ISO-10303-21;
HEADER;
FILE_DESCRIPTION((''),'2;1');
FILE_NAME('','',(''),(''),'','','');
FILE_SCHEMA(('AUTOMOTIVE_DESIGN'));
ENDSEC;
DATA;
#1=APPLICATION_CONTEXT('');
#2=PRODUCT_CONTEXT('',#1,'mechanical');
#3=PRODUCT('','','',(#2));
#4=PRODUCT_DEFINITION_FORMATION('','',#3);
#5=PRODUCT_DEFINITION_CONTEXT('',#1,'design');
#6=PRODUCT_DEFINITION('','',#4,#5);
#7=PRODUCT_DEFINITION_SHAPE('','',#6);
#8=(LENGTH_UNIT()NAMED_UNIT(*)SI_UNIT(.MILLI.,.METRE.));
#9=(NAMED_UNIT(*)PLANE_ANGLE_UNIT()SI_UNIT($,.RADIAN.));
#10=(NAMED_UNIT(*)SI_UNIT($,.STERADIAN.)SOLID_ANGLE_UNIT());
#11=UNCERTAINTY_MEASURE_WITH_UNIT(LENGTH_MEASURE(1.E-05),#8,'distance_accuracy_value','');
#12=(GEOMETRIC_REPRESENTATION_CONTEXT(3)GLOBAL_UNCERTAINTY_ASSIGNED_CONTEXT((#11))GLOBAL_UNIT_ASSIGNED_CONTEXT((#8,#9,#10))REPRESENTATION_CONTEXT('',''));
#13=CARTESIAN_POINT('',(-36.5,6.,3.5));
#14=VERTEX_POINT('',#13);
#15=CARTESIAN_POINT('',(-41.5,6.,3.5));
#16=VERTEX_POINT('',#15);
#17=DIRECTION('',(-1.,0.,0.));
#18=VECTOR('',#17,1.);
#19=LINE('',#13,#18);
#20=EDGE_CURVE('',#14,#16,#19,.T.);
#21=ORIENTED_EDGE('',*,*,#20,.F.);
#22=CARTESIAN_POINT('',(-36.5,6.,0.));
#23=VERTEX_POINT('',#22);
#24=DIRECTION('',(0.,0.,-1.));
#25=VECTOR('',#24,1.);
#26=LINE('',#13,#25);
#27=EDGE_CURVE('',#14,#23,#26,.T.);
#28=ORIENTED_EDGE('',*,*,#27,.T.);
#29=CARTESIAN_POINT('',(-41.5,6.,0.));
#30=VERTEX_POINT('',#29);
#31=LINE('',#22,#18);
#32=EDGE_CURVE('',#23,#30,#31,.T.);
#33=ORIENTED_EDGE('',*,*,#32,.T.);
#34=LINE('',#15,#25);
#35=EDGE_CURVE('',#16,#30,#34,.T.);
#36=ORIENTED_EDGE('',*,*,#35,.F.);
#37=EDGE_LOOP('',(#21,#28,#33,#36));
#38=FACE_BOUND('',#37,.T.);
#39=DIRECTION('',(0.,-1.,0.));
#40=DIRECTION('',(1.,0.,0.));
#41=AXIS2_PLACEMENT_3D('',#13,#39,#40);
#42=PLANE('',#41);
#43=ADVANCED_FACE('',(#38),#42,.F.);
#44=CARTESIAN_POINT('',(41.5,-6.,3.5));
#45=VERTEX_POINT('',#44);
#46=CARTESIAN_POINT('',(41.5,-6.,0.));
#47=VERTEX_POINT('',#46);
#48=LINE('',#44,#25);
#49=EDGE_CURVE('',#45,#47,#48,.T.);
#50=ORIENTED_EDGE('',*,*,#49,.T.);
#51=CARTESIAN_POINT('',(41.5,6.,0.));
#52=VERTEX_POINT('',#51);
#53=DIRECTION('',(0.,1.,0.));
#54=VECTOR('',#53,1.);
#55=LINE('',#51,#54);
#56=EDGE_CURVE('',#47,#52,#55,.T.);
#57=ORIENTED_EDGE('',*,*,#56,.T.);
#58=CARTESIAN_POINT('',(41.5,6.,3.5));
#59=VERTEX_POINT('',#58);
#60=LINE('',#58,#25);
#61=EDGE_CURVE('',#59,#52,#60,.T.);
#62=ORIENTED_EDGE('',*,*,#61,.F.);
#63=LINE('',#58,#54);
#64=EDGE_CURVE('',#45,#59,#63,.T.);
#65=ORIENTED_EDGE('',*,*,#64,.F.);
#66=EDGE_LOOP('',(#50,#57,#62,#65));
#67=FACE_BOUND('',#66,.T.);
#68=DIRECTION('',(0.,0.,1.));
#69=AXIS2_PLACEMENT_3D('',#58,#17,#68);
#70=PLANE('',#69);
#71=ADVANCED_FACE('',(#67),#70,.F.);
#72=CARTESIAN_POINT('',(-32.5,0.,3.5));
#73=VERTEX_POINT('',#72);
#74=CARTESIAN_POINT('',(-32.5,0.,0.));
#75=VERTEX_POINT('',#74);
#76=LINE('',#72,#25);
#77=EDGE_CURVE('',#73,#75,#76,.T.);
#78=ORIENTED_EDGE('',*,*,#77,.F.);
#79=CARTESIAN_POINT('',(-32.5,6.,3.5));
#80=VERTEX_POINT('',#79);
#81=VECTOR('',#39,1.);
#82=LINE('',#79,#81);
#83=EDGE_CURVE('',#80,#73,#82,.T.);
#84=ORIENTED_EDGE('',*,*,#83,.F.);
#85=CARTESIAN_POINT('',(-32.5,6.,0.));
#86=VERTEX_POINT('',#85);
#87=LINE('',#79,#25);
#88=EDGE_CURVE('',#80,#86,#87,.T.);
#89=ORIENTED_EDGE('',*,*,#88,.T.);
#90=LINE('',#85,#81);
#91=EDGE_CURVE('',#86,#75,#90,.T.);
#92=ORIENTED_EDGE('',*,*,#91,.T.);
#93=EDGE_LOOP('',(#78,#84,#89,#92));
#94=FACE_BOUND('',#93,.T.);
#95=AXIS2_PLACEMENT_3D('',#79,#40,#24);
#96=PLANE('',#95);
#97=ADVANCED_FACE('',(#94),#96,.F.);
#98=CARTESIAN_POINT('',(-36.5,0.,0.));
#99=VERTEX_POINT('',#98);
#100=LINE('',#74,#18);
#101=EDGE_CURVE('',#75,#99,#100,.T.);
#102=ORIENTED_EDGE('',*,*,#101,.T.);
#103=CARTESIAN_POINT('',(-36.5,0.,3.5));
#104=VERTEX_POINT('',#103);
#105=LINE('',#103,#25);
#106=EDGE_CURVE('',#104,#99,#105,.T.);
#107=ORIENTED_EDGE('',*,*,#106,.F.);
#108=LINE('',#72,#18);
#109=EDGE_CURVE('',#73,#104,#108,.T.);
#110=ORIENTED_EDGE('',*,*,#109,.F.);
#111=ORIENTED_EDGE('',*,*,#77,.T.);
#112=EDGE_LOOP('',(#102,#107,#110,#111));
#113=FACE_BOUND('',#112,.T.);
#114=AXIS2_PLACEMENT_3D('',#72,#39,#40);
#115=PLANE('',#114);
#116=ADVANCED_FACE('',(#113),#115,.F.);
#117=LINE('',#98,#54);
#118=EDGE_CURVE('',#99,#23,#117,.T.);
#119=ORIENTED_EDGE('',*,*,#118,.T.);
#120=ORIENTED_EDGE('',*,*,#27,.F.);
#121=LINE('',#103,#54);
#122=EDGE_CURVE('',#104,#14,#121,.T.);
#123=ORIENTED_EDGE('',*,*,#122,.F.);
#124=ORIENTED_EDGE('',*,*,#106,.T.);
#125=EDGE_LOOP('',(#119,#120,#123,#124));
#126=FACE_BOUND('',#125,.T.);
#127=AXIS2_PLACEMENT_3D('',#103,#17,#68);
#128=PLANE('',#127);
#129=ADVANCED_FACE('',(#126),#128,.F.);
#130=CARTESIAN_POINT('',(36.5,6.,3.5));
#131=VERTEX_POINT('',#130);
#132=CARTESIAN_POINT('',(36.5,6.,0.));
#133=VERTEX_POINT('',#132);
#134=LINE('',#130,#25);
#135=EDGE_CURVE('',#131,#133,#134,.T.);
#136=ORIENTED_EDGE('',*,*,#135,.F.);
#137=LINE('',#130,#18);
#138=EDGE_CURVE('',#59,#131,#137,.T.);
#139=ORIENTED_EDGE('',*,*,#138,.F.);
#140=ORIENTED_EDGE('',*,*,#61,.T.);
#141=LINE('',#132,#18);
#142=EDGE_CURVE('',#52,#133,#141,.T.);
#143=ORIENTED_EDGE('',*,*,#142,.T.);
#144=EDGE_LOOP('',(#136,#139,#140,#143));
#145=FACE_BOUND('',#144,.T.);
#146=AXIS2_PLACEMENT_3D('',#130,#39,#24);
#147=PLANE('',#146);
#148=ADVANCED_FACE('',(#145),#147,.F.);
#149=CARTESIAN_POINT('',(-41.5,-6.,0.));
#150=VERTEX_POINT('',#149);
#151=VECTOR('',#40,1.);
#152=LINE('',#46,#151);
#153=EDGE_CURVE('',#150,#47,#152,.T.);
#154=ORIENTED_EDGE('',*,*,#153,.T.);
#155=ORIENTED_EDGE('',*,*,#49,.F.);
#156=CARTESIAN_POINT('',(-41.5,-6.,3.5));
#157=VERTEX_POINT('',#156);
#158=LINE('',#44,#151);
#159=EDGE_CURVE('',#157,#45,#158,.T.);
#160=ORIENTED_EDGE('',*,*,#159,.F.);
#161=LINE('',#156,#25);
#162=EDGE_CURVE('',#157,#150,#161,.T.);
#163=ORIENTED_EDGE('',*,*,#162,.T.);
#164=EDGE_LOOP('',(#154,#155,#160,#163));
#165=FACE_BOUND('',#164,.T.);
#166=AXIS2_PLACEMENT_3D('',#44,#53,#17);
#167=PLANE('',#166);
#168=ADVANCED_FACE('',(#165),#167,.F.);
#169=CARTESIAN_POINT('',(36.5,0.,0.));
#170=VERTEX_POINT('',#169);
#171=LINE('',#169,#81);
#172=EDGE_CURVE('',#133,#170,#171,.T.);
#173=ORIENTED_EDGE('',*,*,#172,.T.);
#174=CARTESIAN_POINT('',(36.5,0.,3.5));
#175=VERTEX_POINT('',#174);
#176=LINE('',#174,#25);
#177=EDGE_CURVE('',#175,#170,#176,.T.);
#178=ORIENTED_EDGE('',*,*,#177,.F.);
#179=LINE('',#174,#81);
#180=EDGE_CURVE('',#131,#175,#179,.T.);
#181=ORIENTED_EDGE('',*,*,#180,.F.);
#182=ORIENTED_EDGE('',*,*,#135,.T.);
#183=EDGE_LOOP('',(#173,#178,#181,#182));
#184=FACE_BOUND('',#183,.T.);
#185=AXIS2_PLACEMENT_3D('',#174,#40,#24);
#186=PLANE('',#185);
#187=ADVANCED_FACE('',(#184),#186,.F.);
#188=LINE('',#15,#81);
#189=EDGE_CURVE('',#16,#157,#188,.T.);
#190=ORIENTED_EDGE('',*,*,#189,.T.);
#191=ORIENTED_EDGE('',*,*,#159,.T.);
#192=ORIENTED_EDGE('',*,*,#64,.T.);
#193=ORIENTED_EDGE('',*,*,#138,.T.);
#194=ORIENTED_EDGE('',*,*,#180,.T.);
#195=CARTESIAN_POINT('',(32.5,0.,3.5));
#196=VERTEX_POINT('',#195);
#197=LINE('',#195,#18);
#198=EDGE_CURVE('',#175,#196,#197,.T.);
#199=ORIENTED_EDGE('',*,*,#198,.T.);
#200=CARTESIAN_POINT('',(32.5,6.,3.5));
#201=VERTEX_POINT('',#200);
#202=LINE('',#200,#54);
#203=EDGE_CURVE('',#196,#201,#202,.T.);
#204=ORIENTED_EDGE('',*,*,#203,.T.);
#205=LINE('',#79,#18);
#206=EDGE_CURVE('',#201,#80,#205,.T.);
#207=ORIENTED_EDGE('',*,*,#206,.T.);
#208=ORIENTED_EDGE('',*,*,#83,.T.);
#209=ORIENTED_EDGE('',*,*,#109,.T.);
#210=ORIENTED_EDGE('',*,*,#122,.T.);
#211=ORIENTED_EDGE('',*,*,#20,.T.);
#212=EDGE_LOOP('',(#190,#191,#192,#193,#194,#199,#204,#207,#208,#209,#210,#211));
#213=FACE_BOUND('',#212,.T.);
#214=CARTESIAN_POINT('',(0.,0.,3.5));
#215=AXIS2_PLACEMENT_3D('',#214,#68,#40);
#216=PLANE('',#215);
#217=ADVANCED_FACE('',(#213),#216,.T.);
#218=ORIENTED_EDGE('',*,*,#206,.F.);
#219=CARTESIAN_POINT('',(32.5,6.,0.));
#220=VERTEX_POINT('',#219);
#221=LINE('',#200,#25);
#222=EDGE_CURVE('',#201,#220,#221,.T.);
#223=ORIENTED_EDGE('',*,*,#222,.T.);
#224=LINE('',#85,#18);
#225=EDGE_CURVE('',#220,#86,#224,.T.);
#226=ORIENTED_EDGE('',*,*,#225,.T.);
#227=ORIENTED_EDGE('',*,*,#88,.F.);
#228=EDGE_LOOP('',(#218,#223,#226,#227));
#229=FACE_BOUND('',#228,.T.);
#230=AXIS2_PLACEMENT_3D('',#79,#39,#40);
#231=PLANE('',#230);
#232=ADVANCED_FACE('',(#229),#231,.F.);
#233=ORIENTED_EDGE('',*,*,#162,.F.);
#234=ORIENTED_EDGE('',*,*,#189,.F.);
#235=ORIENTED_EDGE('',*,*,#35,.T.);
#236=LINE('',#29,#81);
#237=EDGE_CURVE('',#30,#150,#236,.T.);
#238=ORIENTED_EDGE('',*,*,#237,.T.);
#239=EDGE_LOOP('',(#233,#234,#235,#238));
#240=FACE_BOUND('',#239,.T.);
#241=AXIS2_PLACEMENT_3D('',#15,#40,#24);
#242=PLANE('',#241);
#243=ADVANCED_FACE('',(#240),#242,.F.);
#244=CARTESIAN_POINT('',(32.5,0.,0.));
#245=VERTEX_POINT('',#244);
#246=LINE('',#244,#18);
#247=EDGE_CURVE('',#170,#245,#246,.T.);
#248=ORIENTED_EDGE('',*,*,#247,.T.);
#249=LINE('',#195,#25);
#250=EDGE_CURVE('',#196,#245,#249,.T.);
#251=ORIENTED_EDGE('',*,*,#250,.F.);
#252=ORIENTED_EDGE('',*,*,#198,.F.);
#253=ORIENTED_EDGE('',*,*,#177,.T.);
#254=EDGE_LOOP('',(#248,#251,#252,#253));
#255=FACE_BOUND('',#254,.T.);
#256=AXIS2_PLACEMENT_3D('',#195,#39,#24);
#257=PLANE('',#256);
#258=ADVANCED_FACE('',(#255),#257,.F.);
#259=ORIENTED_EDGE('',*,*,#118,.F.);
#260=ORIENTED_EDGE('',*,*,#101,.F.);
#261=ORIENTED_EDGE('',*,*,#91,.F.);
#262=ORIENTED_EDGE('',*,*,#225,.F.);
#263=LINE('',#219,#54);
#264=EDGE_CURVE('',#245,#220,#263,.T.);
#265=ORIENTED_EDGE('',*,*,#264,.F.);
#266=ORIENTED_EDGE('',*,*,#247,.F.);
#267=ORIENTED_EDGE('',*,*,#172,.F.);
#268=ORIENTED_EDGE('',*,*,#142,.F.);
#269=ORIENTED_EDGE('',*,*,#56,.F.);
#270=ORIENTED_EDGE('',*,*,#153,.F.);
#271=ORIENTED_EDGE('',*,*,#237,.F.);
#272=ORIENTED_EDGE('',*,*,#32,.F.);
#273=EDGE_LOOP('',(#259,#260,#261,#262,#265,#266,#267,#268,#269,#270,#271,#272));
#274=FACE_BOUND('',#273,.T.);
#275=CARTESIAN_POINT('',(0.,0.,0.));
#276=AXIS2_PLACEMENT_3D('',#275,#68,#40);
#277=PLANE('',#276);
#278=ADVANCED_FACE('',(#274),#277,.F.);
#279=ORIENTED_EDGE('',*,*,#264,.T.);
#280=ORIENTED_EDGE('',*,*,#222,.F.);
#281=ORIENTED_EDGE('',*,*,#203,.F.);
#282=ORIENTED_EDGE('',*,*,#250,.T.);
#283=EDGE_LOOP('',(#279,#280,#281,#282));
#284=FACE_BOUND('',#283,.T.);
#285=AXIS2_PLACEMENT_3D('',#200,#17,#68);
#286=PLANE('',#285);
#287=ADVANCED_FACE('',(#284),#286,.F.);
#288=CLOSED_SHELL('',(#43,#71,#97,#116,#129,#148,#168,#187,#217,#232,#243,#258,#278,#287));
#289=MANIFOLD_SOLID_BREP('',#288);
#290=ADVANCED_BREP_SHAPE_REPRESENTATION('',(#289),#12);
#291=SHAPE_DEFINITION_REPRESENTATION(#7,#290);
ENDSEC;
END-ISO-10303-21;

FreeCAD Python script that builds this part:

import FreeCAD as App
import Part
import Sketcher
from FreeCAD import Vector
Q = App.Units.Quantity


def add_polygon(sketch, points):
    """Adds a closed chain of lines whose ends are joined by coincident constraints."""
    first, n = sketch.GeometryCount, len(points)
    for a, b in zip(points, points[1:] + points[:1]):
        sketch.addGeometry(Part.LineSegment(App.Vector(*a, 0), App.Vector(*b, 0)), False)
    for i in range(n):
        sketch.addConstraint(Sketcher.Constraint("Coincident", first + i, 2, first + (i + 1) % n, 1))

doc = App.newDocument("Part")
body = doc.addObject("PartDesign::Body", "Body")

# Sketch on XY plane
sketch1 = body.newObject("Sketcher::SketchObject", "Sketch")
sketch1.AttachmentSupport = (doc.getObject("XY_Plane"), [""])
sketch1.MapMode = "FlatFace"
add_polygon(sketch1, [(32.5, 6), (-32.5, 6), (-32.5, 0), (-36.5, 0), (-36.5, 6), (-41.5, 6), (-41.5, -6), (41.5, -6), (41.5, 6), (36.5, 6), (36.5, 0), (32.5, 0)])  # lines 0-11
sketch1.addConstraint([
    Sketcher.Constraint("Horizontal", 0),
    Sketcher.Constraint("Vertical", 1),
    Sketcher.Constraint("Horizontal", 2),
    Sketcher.Constraint("Vertical", 3),
    Sketcher.Constraint("Horizontal", 4),
    Sketcher.Constraint("Vertical", 5),
    Sketcher.Constraint("Horizontal", 6),
    Sketcher.Constraint("Vertical", 7),
    Sketcher.Constraint("Horizontal", 8),
    Sketcher.Constraint("Vertical", 9),
    Sketcher.Constraint("Horizontal", 10),
    Sketcher.Constraint("Vertical", 11),
    Sketcher.Constraint("Symmetric", 4, 2, 6, 2, -1, 1),
    Sketcher.Constraint("Symmetric", 2, 2, 9, 2, -1, 1),
    Sketcher.Constraint("Symmetric", 1, 2, 10, 2, -2),
    Sketcher.Constraint("Horizontal", 0, 2, 3, 2),
    Sketcher.Constraint("Horizontal", 4, 2, 7, 2),
    Sketcher.Constraint("DistanceX", 0, 2, 0, 1, Q("65 mm")),
    Sketcher.Constraint("DistanceX", 2, 2, 2, 1, Q("4 mm")),
    Sketcher.Constraint("DistanceX", 4, 2, 4, 1, Q("5 mm")),
    Sketcher.Constraint("DistanceY", 1, 2, 1, 1, Q("6 mm")),
])
pad1 = body.newObject("PartDesign::Pad", "Pad")
pad1.Profile = sketch1
pad1.Length = 3.5

doc.recompute()
